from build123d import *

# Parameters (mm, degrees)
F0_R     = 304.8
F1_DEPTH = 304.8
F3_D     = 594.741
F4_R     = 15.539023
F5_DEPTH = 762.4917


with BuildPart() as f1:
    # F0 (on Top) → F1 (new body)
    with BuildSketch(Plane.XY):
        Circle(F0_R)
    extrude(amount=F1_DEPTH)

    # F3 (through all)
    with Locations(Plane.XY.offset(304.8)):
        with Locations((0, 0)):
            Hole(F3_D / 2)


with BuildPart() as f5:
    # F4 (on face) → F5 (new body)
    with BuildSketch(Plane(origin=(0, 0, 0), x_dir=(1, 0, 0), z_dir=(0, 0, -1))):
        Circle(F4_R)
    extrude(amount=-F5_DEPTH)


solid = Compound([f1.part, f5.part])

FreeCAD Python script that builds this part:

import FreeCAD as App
import Part
import Sketcher

V = App.Vector
Q = App.Units.Quantity

doc = App.newDocument("Part")
body = doc.addObject("PartDesign::Body", "Body")

sketch1 = doc.addObject("Sketcher::SketchObject", "Sketch")
body.addObject(sketch1)
sketch1.AttachmentSupport = (doc.XY_Plane, [""])
sketch1.MapMode = "FlatFace"
sketch1.addGeometry(Part.Circle(V(0, 0, 0), V(0, 0, 1), 304.8), False)
sketch1.addConstraint([
    Sketcher.Constraint("Coincident", 0, 3, -1, 1),
    Sketcher.Constraint("Diameter", 0, Q("24 in")),
])
pad1 = doc.addObject("PartDesign::Pad", "Pad")
body.addObject(pad1)
pad1.Profile = sketch1
pad1.Length = Q("12 in")

sketch2 = doc.addObject("Sketcher::SketchObject", "Sketch001")
body.addObject(sketch2)
sketch2.AttachmentSupport = (doc.XY_Plane, [""])
sketch2.MapMode = "FlatFace"
sketch2.AttachmentOffset = App.Placement(V(0, 0, 12 * 25.4), App.Rotation())
sketch2.addGeometry(Part.Circle(V(0, 0, 0), V(0, 0, 1), 297.3705), False)
sketch2.addConstraint([
    Sketcher.Constraint("Coincident", 0, 3, -1, 1),
    Sketcher.Constraint("Diameter", 0, Q("23.415 in")),
])
doc.recompute()
hole = doc.addObject("PartDesign::Hole", "Hole")
body.addObject(hole)
hole.Profile = sketch2
hole.ThreadType = "None"
hole.Diameter = Q("23.415 in")
hole.DepthType = "ThroughAll"
body2 = doc.addObject("PartDesign::Body", "Body001")

sketch3 = doc.addObject("Sketcher::SketchObject", "Sketch002")
body2.addObject(sketch3)
sketch3.AttachmentSupport = (doc.getObject("XY_Plane001"), [""])
sketch3.MapMode = "FlatFace"
sketch3.addGeometry(Part.Circle(V(0, 0, 0), V(0, 0, 1), 15.539023), False)
sketch3.addConstraint([
    Sketcher.Constraint("Coincident", 0, 3, -1, 1),
    Sketcher.Constraint("Diameter", 0, Q("31.078046 mm")),
])
pad2 = doc.addObject("PartDesign::Pad", "Pad001")
body2.addObject(pad2)
pad2.Profile = sketch3
pad2.Length = 762.4917

doc.recompute()
